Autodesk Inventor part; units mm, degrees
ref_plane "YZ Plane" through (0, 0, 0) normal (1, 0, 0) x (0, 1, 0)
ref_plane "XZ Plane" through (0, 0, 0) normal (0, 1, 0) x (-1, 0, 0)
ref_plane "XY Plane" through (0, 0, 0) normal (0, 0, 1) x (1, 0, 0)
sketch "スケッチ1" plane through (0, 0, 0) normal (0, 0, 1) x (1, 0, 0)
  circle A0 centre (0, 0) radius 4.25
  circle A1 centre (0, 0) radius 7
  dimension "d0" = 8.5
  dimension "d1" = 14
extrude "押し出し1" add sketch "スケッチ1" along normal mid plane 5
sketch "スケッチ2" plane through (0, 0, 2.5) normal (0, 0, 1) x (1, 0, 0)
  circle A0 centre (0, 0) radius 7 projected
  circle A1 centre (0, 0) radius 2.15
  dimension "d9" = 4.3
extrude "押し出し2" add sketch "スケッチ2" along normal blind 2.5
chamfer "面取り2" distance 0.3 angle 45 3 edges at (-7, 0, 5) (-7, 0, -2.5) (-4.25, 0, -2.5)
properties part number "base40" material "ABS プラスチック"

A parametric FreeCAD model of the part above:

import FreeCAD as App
import Part
import Sketcher


def edges_at(feature, points):
    """Names of the edges that pass closest to the given points."""
    edges = feature.Shape.Edges
    near = lambda p: min(range(len(edges)), key=lambda i: edges[i].distToShape(Part.Vertex(*p))[0])
    return sorted({f"Edge{near(p) + 1}" for p in points})

doc = App.newDocument("Part")
body = doc.addObject("PartDesign::Body", "Body")

sketch1 = body.newObject("Sketcher::SketchObject", "Sketch")
sketch1.AttachmentSupport = (doc.getObject("XY_Plane"), [""])
sketch1.MapMode = "FlatFace"
sketch1.addGeometry([
    Part.Circle(App.Vector(0, 0, 0), App.Vector(0, 0, 1), 7),
    Part.Circle(App.Vector(0, 0, 0), App.Vector(0, 0, 1), 4.2),
], False)
sketch1.addConstraint([
    Sketcher.Constraint("Coincident", 0, 3, -1, 1),
    Sketcher.Constraint("Coincident", 1, 3, -1, 1),
    Sketcher.Constraint("Diameter", 0, 14.0),
    Sketcher.Constraint("Diameter", 1, 8.5),
])
pad1 = body.newObject("PartDesign::Pad", "Pad")
pad1.Profile = sketch1
pad1.Length = 5
pad1.Midplane = True

sketch2 = body.newObject("Sketcher::SketchObject", "Sketch001")
sketch2.AttachmentSupport = (doc.getObject("XY_Plane"), [""])
sketch2.MapMode = "FlatFace"
sketch2.AttachmentOffset = App.Placement(App.Vector(0, 0, 2.5), App.Rotation())
sketch2.addGeometry([
    Part.Circle(App.Vector(0, 0, 0), App.Vector(0, 0, 1), 7),
    Part.Circle(App.Vector(0, 0, 0), App.Vector(0, 0, 1), 2.1),
], False)
sketch2.addConstraint([
    Sketcher.Constraint("Coincident", 0, 3, -1, 1),
    Sketcher.Constraint("Coincident", 1, 3, -1, 1),
    Sketcher.Constraint("Diameter", 1, 4.3),
    Sketcher.Constraint("Diameter", 0, 14.0),
])
pad2 = body.newObject("PartDesign::Pad", "Pad001")
pad2.Profile = sketch2
pad2.Length = 2.5
doc.recompute()

chamfer = body.newObject("PartDesign::Chamfer", "Chamfer")
chamfer.Base = (pad2, edges_at(pad2, [(-7, 0, 5), (-7, 0, -2.5), (-4.25, 0, -2.5)]))
chamfer.Size = 0.3

doc.recompute()
